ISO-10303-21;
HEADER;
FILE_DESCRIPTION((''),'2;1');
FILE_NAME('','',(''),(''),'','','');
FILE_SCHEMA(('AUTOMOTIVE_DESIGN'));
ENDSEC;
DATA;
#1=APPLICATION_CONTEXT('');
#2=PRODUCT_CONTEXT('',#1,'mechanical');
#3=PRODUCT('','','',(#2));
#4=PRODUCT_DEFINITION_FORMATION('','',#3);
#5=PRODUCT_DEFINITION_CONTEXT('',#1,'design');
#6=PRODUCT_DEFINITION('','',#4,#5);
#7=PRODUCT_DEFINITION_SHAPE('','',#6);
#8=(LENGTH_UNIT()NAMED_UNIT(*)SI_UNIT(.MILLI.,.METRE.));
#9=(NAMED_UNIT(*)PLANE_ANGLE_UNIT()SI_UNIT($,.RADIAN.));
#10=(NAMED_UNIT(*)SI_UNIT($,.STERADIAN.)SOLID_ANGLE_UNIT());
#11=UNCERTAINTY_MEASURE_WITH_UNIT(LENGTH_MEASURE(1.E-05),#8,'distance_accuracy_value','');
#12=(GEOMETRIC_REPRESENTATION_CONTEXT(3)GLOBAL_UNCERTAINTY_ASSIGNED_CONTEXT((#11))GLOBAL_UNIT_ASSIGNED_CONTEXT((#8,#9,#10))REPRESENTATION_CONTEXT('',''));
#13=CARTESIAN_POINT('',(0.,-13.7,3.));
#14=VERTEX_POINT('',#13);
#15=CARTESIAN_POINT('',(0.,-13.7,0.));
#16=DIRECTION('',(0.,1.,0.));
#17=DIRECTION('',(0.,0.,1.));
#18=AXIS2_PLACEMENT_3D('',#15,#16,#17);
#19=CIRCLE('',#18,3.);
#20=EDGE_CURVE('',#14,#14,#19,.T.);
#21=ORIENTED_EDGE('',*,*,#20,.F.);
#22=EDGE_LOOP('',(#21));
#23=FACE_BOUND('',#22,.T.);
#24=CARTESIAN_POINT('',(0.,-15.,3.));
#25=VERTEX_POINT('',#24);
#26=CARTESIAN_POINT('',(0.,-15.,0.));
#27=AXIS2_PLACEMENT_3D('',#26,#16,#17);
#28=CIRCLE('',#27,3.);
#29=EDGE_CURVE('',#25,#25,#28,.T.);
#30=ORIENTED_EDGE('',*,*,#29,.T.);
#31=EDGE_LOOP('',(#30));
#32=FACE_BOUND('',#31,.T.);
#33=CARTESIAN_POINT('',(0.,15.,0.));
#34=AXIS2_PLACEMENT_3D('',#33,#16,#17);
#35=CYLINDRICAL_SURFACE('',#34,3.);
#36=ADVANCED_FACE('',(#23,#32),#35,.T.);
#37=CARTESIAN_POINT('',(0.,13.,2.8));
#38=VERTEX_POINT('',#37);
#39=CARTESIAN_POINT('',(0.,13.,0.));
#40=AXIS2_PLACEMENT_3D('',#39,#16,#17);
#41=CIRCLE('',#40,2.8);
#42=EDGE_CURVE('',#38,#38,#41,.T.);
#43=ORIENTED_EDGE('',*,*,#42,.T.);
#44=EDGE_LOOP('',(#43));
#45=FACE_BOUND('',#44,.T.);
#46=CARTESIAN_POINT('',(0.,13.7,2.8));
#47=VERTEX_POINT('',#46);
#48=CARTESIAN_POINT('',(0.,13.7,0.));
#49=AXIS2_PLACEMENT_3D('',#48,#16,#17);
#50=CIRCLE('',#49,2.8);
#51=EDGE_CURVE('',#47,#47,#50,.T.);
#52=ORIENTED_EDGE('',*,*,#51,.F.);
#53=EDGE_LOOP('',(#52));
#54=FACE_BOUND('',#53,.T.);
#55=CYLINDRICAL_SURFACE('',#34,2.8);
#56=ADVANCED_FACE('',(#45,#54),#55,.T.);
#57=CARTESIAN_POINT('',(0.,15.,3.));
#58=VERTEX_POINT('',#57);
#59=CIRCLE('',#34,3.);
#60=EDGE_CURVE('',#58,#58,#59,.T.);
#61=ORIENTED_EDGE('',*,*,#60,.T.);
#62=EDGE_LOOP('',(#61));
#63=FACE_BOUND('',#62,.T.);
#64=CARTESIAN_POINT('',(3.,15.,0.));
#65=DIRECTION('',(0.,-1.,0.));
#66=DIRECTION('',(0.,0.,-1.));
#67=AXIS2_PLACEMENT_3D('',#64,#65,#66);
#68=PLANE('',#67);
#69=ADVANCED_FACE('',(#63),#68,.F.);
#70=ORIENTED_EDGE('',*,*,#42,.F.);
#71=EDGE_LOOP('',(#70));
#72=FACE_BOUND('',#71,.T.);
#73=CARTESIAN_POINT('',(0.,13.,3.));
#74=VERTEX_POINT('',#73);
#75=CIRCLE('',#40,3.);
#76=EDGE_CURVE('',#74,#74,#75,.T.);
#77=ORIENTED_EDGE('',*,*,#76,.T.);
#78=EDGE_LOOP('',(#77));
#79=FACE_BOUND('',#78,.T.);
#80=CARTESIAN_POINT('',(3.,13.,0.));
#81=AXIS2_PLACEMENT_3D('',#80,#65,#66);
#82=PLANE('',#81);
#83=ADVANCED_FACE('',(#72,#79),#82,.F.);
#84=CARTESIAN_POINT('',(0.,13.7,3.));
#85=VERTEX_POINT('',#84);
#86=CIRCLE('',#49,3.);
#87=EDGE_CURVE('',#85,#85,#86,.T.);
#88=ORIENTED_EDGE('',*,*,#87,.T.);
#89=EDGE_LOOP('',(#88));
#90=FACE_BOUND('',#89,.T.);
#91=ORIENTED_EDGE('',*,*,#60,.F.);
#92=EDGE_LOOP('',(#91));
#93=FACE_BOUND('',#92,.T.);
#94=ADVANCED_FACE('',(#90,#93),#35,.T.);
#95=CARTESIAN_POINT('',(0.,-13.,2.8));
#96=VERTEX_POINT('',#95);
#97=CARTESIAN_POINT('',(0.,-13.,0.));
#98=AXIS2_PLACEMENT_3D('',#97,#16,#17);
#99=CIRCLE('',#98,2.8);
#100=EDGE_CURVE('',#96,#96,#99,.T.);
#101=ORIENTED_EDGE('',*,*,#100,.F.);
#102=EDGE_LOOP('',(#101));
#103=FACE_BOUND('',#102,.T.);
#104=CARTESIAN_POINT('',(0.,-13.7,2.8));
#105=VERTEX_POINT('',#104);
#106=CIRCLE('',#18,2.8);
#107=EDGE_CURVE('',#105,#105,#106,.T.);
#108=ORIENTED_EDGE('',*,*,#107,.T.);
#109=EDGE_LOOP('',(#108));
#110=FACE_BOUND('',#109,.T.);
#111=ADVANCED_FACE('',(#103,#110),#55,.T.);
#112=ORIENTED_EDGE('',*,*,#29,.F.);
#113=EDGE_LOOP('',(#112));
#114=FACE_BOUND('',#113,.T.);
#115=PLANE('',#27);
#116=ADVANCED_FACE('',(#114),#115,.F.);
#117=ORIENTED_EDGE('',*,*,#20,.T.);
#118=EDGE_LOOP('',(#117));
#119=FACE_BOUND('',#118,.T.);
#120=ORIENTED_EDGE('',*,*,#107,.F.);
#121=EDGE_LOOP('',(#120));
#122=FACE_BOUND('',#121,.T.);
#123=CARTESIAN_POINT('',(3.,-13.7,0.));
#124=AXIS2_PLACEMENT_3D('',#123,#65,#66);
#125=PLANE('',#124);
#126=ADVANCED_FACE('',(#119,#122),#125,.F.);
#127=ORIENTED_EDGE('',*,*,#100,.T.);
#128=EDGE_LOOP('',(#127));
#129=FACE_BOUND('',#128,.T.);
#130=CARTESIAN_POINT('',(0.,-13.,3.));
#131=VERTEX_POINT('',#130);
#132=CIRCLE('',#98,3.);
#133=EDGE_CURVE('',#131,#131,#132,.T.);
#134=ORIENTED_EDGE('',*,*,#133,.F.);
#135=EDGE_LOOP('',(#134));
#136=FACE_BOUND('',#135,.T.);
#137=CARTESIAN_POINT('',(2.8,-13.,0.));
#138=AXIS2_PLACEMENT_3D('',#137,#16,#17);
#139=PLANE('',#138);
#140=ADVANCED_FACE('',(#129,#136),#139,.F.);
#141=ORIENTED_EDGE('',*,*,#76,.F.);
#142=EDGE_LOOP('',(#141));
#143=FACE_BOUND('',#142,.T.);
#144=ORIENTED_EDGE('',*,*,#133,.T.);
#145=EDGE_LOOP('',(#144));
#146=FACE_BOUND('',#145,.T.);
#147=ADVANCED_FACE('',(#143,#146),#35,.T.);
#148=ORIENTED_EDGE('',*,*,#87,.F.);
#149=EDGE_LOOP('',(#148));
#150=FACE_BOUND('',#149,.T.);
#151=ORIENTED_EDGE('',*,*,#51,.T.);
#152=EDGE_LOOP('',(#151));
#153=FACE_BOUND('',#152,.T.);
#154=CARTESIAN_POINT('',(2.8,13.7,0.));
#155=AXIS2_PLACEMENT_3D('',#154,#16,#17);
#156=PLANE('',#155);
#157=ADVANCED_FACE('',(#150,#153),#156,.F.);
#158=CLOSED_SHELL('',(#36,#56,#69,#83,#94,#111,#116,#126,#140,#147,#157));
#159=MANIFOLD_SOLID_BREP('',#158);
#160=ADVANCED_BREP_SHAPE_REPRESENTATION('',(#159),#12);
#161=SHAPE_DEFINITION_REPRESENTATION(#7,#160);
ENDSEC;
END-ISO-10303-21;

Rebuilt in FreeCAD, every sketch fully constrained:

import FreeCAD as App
import Part
import Sketcher
from FreeCAD import Vector
Q = App.Units.Quantity


def add_polygon(sketch, points):
    """Adds a closed chain of lines whose ends are joined by coincident constraints."""
    first, n = sketch.GeometryCount, len(points)
    for a, b in zip(points, points[1:] + points[:1]):
        sketch.addGeometry(Part.LineSegment(App.Vector(*a, 0), App.Vector(*b, 0)), False)
    for i in range(n):
        sketch.addConstraint(Sketcher.Constraint("Coincident", first + i, 2, first + (i + 1) % n, 1))

doc = App.newDocument("Part")
body = doc.addObject("PartDesign::Body", "Body")

# Sketch on XY plane
sketch1 = body.newObject("Sketcher::SketchObject", "Sketch")
sketch1.AttachmentSupport = (doc.getObject("XY_Plane"), [""])
sketch1.MapMode = "FlatFace"
add_polygon(sketch1, [(0, -15), (3, -15), (3, -13.7), (2.8, -13.7), (2.8, -13), (3, -13), (3, 13), (2.8, 13), (2.8, 13.7), (3, 13.7), (3, 15), (0, 15)])  # lines 0-11
sketch1.addConstraint([
    Sketcher.Constraint("Horizontal", 0),
    Sketcher.Constraint("Vertical", 1),
    Sketcher.Constraint("Horizontal", 2),
    Sketcher.Constraint("Vertical", 3),
    Sketcher.Constraint("Horizontal", 4),
    Sketcher.Constraint("Vertical", 5),
    Sketcher.Constraint("Horizontal", 6),
    Sketcher.Constraint("Vertical", 7),
    Sketcher.Constraint("Horizontal", 8),
    Sketcher.Constraint("Vertical", 9),
    Sketcher.Constraint("Horizontal", 10),
    Sketcher.Constraint("Vertical", 11),
    Sketcher.Constraint("Symmetric", 10, 2, 11, 2, -1, 1),
    Sketcher.Constraint("Symmetric", 3, 2, 6, 2, -1),
    Sketcher.Constraint("Symmetric", 1, 2, 8, 2, -1),
    Sketcher.Constraint("Vertical", 1, 2, 4, 2),
    Sketcher.Constraint("DistanceX", 0, 1, 0, 2, Q("3 mm")),
    Sketcher.Constraint("DistanceY", 5, 1, 5, 2, Q("26 mm")),
    Sketcher.Constraint("DistanceY", 11, 2, 11, 1, Q("30 mm")),
    Sketcher.Constraint("DistanceX", 2, 2, 2, 1, Q("0.2 mm")),
    Sketcher.Constraint("DistanceY", 1, 1, 1, 2, Q("1.3 mm")),
])
revolution = body.newObject("PartDesign::Revolution", "Revolution")
revolution.Profile = sketch1
revolution.ReferenceAxis = (sketch1, ["V_Axis"])
revolution.Angle = 360

doc.recompute()
